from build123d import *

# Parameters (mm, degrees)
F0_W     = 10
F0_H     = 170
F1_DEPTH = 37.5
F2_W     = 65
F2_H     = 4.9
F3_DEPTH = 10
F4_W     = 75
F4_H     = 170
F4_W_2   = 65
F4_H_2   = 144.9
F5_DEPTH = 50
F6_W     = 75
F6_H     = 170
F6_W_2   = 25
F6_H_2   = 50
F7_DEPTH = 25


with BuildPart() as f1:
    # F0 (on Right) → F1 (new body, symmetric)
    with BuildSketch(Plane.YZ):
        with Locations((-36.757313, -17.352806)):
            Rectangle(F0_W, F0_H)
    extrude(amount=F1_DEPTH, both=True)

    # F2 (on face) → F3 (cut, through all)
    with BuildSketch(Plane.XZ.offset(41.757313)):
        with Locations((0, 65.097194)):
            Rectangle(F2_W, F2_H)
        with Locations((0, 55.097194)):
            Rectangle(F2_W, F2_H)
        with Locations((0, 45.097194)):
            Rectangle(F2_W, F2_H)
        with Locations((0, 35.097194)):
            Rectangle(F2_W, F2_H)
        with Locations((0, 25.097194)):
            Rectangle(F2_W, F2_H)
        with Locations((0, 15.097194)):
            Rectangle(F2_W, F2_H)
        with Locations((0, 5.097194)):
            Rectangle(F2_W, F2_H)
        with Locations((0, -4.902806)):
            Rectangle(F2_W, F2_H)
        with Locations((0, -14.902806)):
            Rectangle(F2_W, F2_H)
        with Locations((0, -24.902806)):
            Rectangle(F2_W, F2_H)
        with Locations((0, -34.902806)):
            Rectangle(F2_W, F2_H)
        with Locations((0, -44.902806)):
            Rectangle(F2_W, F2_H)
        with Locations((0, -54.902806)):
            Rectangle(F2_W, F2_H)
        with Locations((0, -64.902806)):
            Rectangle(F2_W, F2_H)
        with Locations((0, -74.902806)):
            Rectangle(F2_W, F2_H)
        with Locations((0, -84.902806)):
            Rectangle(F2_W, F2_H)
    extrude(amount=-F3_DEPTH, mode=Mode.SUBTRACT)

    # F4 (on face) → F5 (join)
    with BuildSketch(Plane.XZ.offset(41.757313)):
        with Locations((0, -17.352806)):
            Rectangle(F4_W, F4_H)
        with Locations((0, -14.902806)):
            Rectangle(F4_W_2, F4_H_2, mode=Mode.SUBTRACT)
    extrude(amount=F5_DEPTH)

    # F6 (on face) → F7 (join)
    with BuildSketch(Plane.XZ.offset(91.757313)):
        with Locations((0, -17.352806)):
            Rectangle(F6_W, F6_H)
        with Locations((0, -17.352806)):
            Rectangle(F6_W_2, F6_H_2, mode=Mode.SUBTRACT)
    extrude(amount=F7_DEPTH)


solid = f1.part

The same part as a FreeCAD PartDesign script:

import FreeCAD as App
import Part
import Sketcher

doc = App.newDocument("Part")
params = doc.addObject("Spreadsheet::Sheet", "Params")
for row, (alias, value) in enumerate([
    ("sketch1_width", "10 mm"),
    ("sketch1_height", "170 mm"),
    ("pad1_length", "75 mm"),
    ("sketch2_width", "65 mm"),
    ("sketch2_height", "4.9 mm"),
    ("sketch3_width", "75 mm"),
    ("sketch3_width2", "65 mm"),
    ("sketch3_height", "170 mm"),
    ("sketch3_height2", "144.9 mm"),
    ("pad2_length", "50 mm"),
    ("sketch4_width", "75 mm"),
    ("sketch4_width2", "25 mm"),
    ("sketch4_height", "170 mm"),
    ("sketch4_height2", "50 mm"),
    ("pad3_length", "25 mm"),
], start=1):
    params.set(f"A{row}", alias)
    params.set(f"B{row}", "=" + value)
    params.setAlias(f"B{row}", alias)

body = doc.addObject("PartDesign::Body", "Body")

# Sketch on YZ plane
sketch1 = doc.addObject("Sketcher::SketchObject", "Sketch")
body.addObject(sketch1)
sketch1.AttachmentSupport = (doc.YZ_Plane, [""])
sketch1.MapMode = "FlatFace"
sketch1.addGeometry([
    Part.LineSegment(App.Vector(-42, 68, 0), App.Vector(-42, -102, 0)),
    Part.LineSegment(App.Vector(-42, -102, 0), App.Vector(-32, -102, 0)),
    Part.LineSegment(App.Vector(-32, -102, 0), App.Vector(-32, 68, 0)),
    Part.LineSegment(App.Vector(-32, 68, 0), App.Vector(-42, 68, 0)),
], False)
sketch1.addConstraint([
    Sketcher.Constraint("Coincident", 0, 2, 1, 1),
    Sketcher.Constraint("Coincident", 1, 2, 2, 1),
    Sketcher.Constraint("Coincident", 2, 2, 3, 1),
    Sketcher.Constraint("Coincident", 3, 2, 0, 1),
    Sketcher.Constraint("Vertical", 0),
    Sketcher.Constraint("Horizontal", 1),
    Sketcher.Constraint("Vertical", 2),
    Sketcher.Constraint("Horizontal", 3),
    Sketcher.Constraint("DistanceX", 1, 1, 1, 2, 10.0),
    Sketcher.Constraint("DistanceY", 0, 2, 0, 1, 170.0),
    Sketcher.Constraint("DistanceX", 0, 2, -1, 1, 41.757313),
    Sketcher.Constraint("DistanceY", 0, 2, -1, 1, 102.352806),
])
sketch1.setExpression("Constraints[8]", "Params.sketch1_width")
sketch1.setExpression("Constraints[9]", "Params.sketch1_height")
pad1 = doc.addObject("PartDesign::Pad", "Pad")
body.addObject(pad1)
pad1.Profile = sketch1
pad1.setExpression("Length", "Params.pad1_length")
pad1.Midplane = True

# Sketch on XZ plane
sketch2 = doc.addObject("Sketcher::SketchObject", "Sketch001")
body.addObject(sketch2)
sketch2.AttachmentSupport = (doc.XZ_Plane, [""])
sketch2.MapMode = "FlatFace"
sketch2.AttachmentOffset = App.Placement(App.Vector(0, 0, 41.757313), App.Rotation())
sketch2.addGeometry([
    Part.LineSegment(App.Vector(-32.5, 67.5, 0), App.Vector(-32.5, 62.6, 0)),  # 0
    Part.LineSegment(App.Vector(-32.5, 62.6, 0), App.Vector(32.5, 62.6, 0)),  # 1
    Part.LineSegment(App.Vector(32.5, 62.6, 0), App.Vector(32.5, 67.5, 0)),  # 2
    Part.LineSegment(App.Vector(32.5, 67.5, 0), App.Vector(-32.5, 67.5, 0)),  # 3
    Part.LineSegment(App.Vector(-32.5, 57.5, 0), App.Vector(-32.5, 52.6, 0)),  # 4
    Part.LineSegment(App.Vector(-32.5, 52.6, 0), App.Vector(32.5, 52.6, 0)),  # 5
    Part.LineSegment(App.Vector(32.5, 52.6, 0), App.Vector(32.5, 57.5, 0)),  # 6
    Part.LineSegment(App.Vector(32.5, 57.5, 0), App.Vector(-32.5, 57.5, 0)),  # 7
    Part.LineSegment(App.Vector(-32.5, 47.5, 0), App.Vector(-32.5, 42.6, 0)),  # 8
    Part.LineSegment(App.Vector(-32.5, 42.6, 0), App.Vector(32.5, 42.6, 0)),  # 9
    Part.LineSegment(App.Vector(32.5, 42.6, 0), App.Vector(32.5, 47.5, 0)),  # 10
    Part.LineSegment(App.Vector(32.5, 47.5, 0), App.Vector(-32.5, 47.5, 0)),  # 11
    Part.LineSegment(App.Vector(-32.5, 37.5, 0), App.Vector(-32.5, 32.6, 0)),  # 12
    Part.LineSegment(App.Vector(-32.5, 32.6, 0), App.Vector(32.5, 32.6, 0)),  # 13
    Part.LineSegment(App.Vector(32.5, 32.6, 0), App.Vector(32.5, 37.5, 0)),  # 14
    Part.LineSegment(App.Vector(32.5, 37.5, 0), App.Vector(-32.5, 37.5, 0)),  # 15
    Part.LineSegment(App.Vector(-32.5, 27.5, 0), App.Vector(-32.5, 22.6, 0)),  # 16
    Part.LineSegment(App.Vector(-32.5, 22.6, 0), App.Vector(32.5, 22.6, 0)),  # 17
    Part.LineSegment(App.Vector(32.5, 22.6, 0), App.Vector(32.5, 27.5, 0)),  # 18
    Part.LineSegment(App.Vector(32.5, 27.5, 0), App.Vector(-32.5, 27.5, 0)),  # 19
    Part.LineSegment(App.Vector(-32.5, 17.5, 0), App.Vector(-32.5, 12.6, 0)),  # 20
    Part.LineSegment(App.Vector(-32.5, 12.6, 0), App.Vector(32.5, 12.6, 0)),  # 21
    Part.LineSegment(App.Vector(32.5, 12.6, 0), App.Vector(32.5, 17.5, 0)),  # 22
    Part.LineSegment(App.Vector(32.5, 17.5, 0), App.Vector(-32.5, 17.5, 0)),  # 23
    Part.LineSegment(App.Vector(-32.5, 7.5, 0), App.Vector(-32.5, 2.6, 0)),  # 24
    Part.LineSegment(App.Vector(-32.5, 2.6, 0), App.Vector(32.5, 2.6, 0)),  # 25
    Part.LineSegment(App.Vector(32.5, 2.6, 0), App.Vector(32.5, 7.5, 0)),  # 26
    Part.LineSegment(App.Vector(32.5, 7.5, 0), App.Vector(-32.5, 7.5, 0)),  # 27
    Part.LineSegment(App.Vector(-32.5, -2.5, 0), App.Vector(-32.5, -7.4, 0)),  # 28
    Part.LineSegment(App.Vector(-32.5, -7.4, 0), App.Vector(32.5, -7.4, 0)),  # 29
    Part.LineSegment(App.Vector(32.5, -7.4, 0), App.Vector(32.5, -2.5, 0)),  # 30
    Part.LineSegment(App.Vector(32.5, -2.5, 0), App.Vector(-32.5, -2.5, 0)),  # 31
    Part.LineSegment(App.Vector(-32.5, -12.5, 0), App.Vector(-32.5, -17.4, 0)),  # 32
    Part.LineSegment(App.Vector(-32.5, -17.4, 0), App.Vector(32.5, -17.4, 0)),  # 33
    Part.LineSegment(App.Vector(32.5, -17.4, 0), App.Vector(32.5, -12.5, 0)),  # 34
    Part.LineSegment(App.Vector(32.5, -12.5, 0), App.Vector(-32.5, -12.5, 0)),  # 35
    Part.LineSegment(App.Vector(-32.5, -22.5, 0), App.Vector(-32.5, -27.4, 0)),  # 36
    Part.LineSegment(App.Vector(-32.5, -27.4, 0), App.Vector(32.5, -27.4, 0)),  # 37
    Part.LineSegment(App.Vector(32.5, -27.4, 0), App.Vector(32.5, -22.5, 0)),  # 38
    Part.LineSegment(App.Vector(32.5, -22.5, 0), App.Vector(-32.5, -22.5, 0)),  # 39
    Part.LineSegment(App.Vector(-32.5, -32.5, 0), App.Vector(-32.5, -37.4, 0)),  # 40
    Part.LineSegment(App.Vector(-32.5, -37.4, 0), App.Vector(32.5, -37.4, 0)),  # 41
    Part.LineSegment(App.Vector(32.5, -37.4, 0), App.Vector(32.5, -32.5, 0)),  # 42
    Part.LineSegment(App.Vector(32.5, -32.5, 0), App.Vector(-32.5, -32.5, 0)),  # 43
    Part.LineSegment(App.Vector(-32.5, -42.5, 0), App.Vector(-32.5, -47.4, 0)),  # 44
    Part.LineSegment(App.Vector(-32.5, -47.4, 0), App.Vector(32.5, -47.4, 0)),  # 45
    Part.LineSegment(App.Vector(32.5, -47.4, 0), App.Vector(32.5, -42.5, 0)),  # 46
    Part.LineSegment(App.Vector(32.5, -42.5, 0), App.Vector(-32.5, -42.5, 0)),  # 47
    Part.LineSegment(App.Vector(-32.5, -52.5, 0), App.Vector(-32.5, -57.4, 0)),  # 48
    Part.LineSegment(App.Vector(-32.5, -57.4, 0), App.Vector(32.5, -57.4, 0)),  # 49
    Part.LineSegment(App.Vector(32.5, -57.4, 0), App.Vector(32.5, -52.5, 0)),  # 50
    Part.LineSegment(App.Vector(32.5, -52.5, 0), App.Vector(-32.5, -52.5, 0)),  # 51
    Part.LineSegment(App.Vector(-32.5, -62.5, 0), App.Vector(-32.5, -67.4, 0)),  # 52
    Part.LineSegment(App.Vector(-32.5, -67.4, 0), App.Vector(32.5, -67.4, 0)),  # 53
    Part.LineSegment(App.Vector(32.5, -67.4, 0), App.Vector(32.5, -62.5, 0)),  # 54
    Part.LineSegment(App.Vector(32.5, -62.5, 0), App.Vector(-32.5, -62.5, 0)),  # 55
    Part.LineSegment(App.Vector(-32.5, -72.5, 0), App.Vector(-32.5, -77.4, 0)),  # 56
    Part.LineSegment(App.Vector(-32.5, -77.4, 0), App.Vector(32.5, -77.4, 0)),  # 57
    Part.LineSegment(App.Vector(32.5, -77.4, 0), App.Vector(32.5, -72.5, 0)),  # 58
    Part.LineSegment(App.Vector(32.5, -72.5, 0), App.Vector(-32.5, -72.5, 0)),  # 59
    Part.LineSegment(App.Vector(-32.5, -82.5, 0), App.Vector(-32.5, -87.4, 0)),  # 60
    Part.LineSegment(App.Vector(-32.5, -87.4, 0), App.Vector(32.5, -87.4, 0)),  # 61
    Part.LineSegment(App.Vector(32.5, -87.4, 0), App.Vector(32.5, -82.5, 0)),  # 62
    Part.LineSegment(App.Vector(32.5, -82.5, 0), App.Vector(-32.5, -82.5, 0)),  # 63
], False)
sketch2.addConstraint([
    Sketcher.Constraint("Coincident", 0, 2, 1, 1),
    Sketcher.Constraint("Coincident", 1, 2, 2, 1),
    Sketcher.Constraint("Coincident", 2, 2, 3, 1),
    Sketcher.Constraint("Coincident", 3, 2, 0, 1),
    Sketcher.Constraint("Coincident", 4, 2, 5, 1),
    Sketcher.Constraint("Coincident", 5, 2, 6, 1),
    Sketcher.Constraint("Coincident", 6, 2, 7, 1),
    Sketcher.Constraint("Coincident", 7, 2, 4, 1),
    Sketcher.Constraint("Coincident", 8, 2, 9, 1),
    Sketcher.Constraint("Coincident", 9, 2, 10, 1),
    Sketcher.Constraint("Coincident", 10, 2, 11, 1),
    Sketcher.Constraint("Coincident", 11, 2, 8, 1),
    Sketcher.Constraint("Coincident", 12, 2, 13, 1),
    Sketcher.Constraint("Coincident", 13, 2, 14, 1),
    Sketcher.Constraint("Coincident", 14, 2, 15, 1),
    Sketcher.Constraint("Coincident", 15, 2, 12, 1),
    Sketcher.Constraint("Coincident", 16, 2, 17, 1),
    Sketcher.Constraint("Coincident", 17, 2, 18, 1),
    Sketcher.Constraint("Coincident", 18, 2, 19, 1),
    Sketcher.Constraint("Coincident", 19, 2, 16, 1),
    Sketcher.Constraint("Coincident", 20, 2, 21, 1),
    Sketcher.Constraint("Coincident", 21, 2, 22, 1),
    Sketcher.Constraint("Coincident", 22, 2, 23, 1),
    Sketcher.Constraint("Coincident", 23, 2, 20, 1),
    Sketcher.Constraint("Coincident", 24, 2, 25, 1),
    Sketcher.Constraint("Coincident", 25, 2, 26, 1),
    Sketcher.Constraint("Coincident", 26, 2, 27, 1),
    Sketcher.Constraint("Coincident", 27, 2, 24, 1),
    Sketcher.Constraint("Coincident", 28, 2, 29, 1),
    Sketcher.Constraint("Coincident", 29, 2, 30, 1),
    Sketcher.Constraint("Coincident", 30, 2, 31, 1),
    Sketcher.Constraint("Coincident", 31, 2, 28, 1),
    Sketcher.Constraint("Coincident", 32, 2, 33, 1),
    Sketcher.Constraint("Coincident", 33, 2, 34, 1),
    Sketcher.Constraint("Coincident", 34, 2, 35, 1),
    Sketcher.Constraint("Coincident", 35, 2, 32, 1),
    Sketcher.Constraint("Coincident", 36, 2, 37, 1),
    Sketcher.Constraint("Coincident", 37, 2, 38, 1),
    Sketcher.Constraint("Coincident", 38, 2, 39, 1),
    Sketcher.Constraint("Coincident", 39, 2, 36, 1),
    Sketcher.Constraint("Coincident", 40, 2, 41, 1),
    Sketcher.Constraint("Coincident", 41, 2, 42, 1),
    Sketcher.Constraint("Coincident", 42, 2, 43, 1),
    Sketcher.Constraint("Coincident", 43, 2, 40, 1),
    Sketcher.Constraint("Coincident", 44, 2, 45, 1),
    Sketcher.Constraint("Coincident", 45, 2, 46, 1),
    Sketcher.Constraint("Coincident", 46, 2, 47, 1),
    Sketcher.Constraint("Coincident", 47, 2, 44, 1),
    Sketcher.Constraint("Coincident", 48, 2, 49, 1),
    Sketcher.Constraint("Coincident", 49, 2, 50, 1),
    Sketcher.Constraint("Coincident", 50, 2, 51, 1),
    Sketcher.Constraint("Coincident", 51, 2, 48, 1),
    Sketcher.Constraint("Coincident", 52, 2, 53, 1),
    Sketcher.Constraint("Coincident", 53, 2, 54, 1),
    Sketcher.Constraint("Coincident", 54, 2, 55, 1),
    Sketcher.Constraint("Coincident", 55, 2, 52, 1),
    Sketcher.Constraint("Coincident", 56, 2, 57, 1),
    Sketcher.Constraint("Coincident", 57, 2, 58, 1),
    Sketcher.Constraint("Coincident", 58, 2, 59, 1),
    Sketcher.Constraint("Coincident", 59, 2, 56, 1),
    Sketcher.Constraint("Coincident", 60, 2, 61, 1),
    Sketcher.Constraint("Coincident", 61, 2, 62, 1),
    Sketcher.Constraint("Coincident", 62, 2, 63, 1),
    Sketcher.Constraint("Coincident", 63, 2, 60, 1),
    Sketcher.Constraint("Vertical", 0),
    Sketcher.Constraint("Horizontal", 1),
    Sketcher.Constraint("Vertical", 2),
    Sketcher.Constraint("Horizontal", 3),
    Sketcher.Constraint("Vertical", 4),
    Sketcher.Constraint("Horizontal", 5),
    Sketcher.Constraint("Vertical", 6),
    Sketcher.Constraint("Horizontal", 7),
    Sketcher.Constraint("Vertical", 8),
    Sketcher.Constraint("Horizontal", 9),
    Sketcher.Constraint("Vertical", 10),
    Sketcher.Constraint("Horizontal", 11),
    Sketcher.Constraint("Vertical", 12),
    Sketcher.Constraint("Horizontal", 13),
    Sketcher.Constraint("Vertical", 14),
    Sketcher.Constraint("Horizontal", 15),
    Sketcher.Constraint("Vertical", 16),
    Sketcher.Constraint("Horizontal", 17),
    Sketcher.Constraint("Vertical", 18),
    Sketcher.Constraint("Horizontal", 19),
    Sketcher.Constraint("Vertical", 20),
    Sketcher.Constraint("Horizontal", 21),
    Sketcher.Constraint("Vertical", 22),
    Sketcher.Constraint("Horizontal", 23),
    Sketcher.Constraint("Vertical", 24),
    Sketcher.Constraint("Horizontal", 25),
    Sketcher.Constraint("Vertical", 26),
    Sketcher.Constraint("Horizontal", 27),
    Sketcher.Constraint("Vertical", 28),
    Sketcher.Constraint("Horizontal", 29),
    Sketcher.Constraint("Vertical", 30),
    Sketcher.Constraint("Horizontal", 31),
    Sketcher.Constraint("Vertical", 32),
    Sketcher.Constraint("Horizontal", 33),
    Sketcher.Constraint("Vertical", 34),
    Sketcher.Constraint("Horizontal", 35),
    Sketcher.Constraint("Vertical", 36),
    Sketcher.Constraint("Horizontal", 37),
    Sketcher.Constraint("Vertical", 38),
    Sketcher.Constraint("Horizontal", 39),
    Sketcher.Constraint("Vertical", 40),
    Sketcher.Constraint("Horizontal", 41),
    Sketcher.Constraint("Vertical", 42),
    Sketcher.Constraint("Horizontal", 43),
    Sketcher.Constraint("Vertical", 44),
    Sketcher.Constraint("Horizontal", 45),
    Sketcher.Constraint("Vertical", 46),
    Sketcher.Constraint("Horizontal", 47),
    Sketcher.Constraint("Vertical", 48),
    Sketcher.Constraint("Horizontal", 49),
    Sketcher.Constraint("Vertical", 50),
    Sketcher.Constraint("Horizontal", 51),
    Sketcher.Constraint("Vertical", 52),
    Sketcher.Constraint("Horizontal", 53),
    Sketcher.Constraint("Vertical", 54),
    Sketcher.Constraint("Horizontal", 55),
    Sketcher.Constraint("Vertical", 56),
    Sketcher.Constraint("Horizontal", 57),
    Sketcher.Constraint("Vertical", 58),
    Sketcher.Constraint("Horizontal", 59),
    Sketcher.Constraint("Vertical", 60),
    Sketcher.Constraint("Horizontal", 61),
    Sketcher.Constraint("Vertical", 62),
    Sketcher.Constraint("Horizontal", 63),
    Sketcher.Constraint("Vertical", 3, 2, 4, 2),
    Sketcher.Constraint("Vertical", 2, 2, 5, 2),
    Sketcher.Constraint("Vertical", 7, 2, 8, 2),
    Sketcher.Constraint("Vertical", 6, 2, 9, 2),
    Sketcher.Constraint("Vertical", 11, 2, 12, 2),
    Sketcher.Constraint("Vertical", 10, 2, 13, 2),
    Sketcher.Constraint("Vertical", 15, 2, 16, 2),
    Sketcher.Constraint("Vertical", 14, 2, 17, 2),
    Sketcher.Constraint("Vertical", 19, 2, 20, 2),
    Sketcher.Constraint("Vertical", 18, 2, 21, 2),
    Sketcher.Constraint("Vertical", 23, 2, 24, 2),
    Sketcher.Constraint("Vertical", 22, 2, 25, 2),
    Sketcher.Constraint("Vertical", 27, 2, 28, 2),
    Sketcher.Constraint("Vertical", 26, 2, 29, 2),
    Sketcher.Constraint("Vertical", 31, 2, 32, 2),
    Sketcher.Constraint("Vertical", 30, 2, 33, 2),
    Sketcher.Constraint("Vertical", 35, 2, 36, 2),
    Sketcher.Constraint("Vertical", 34, 2, 37, 2),
    Sketcher.Constraint("Vertical", 39, 2, 40, 2),
    Sketcher.Constraint("Vertical", 38, 2, 41, 2),
    Sketcher.Constraint("Vertical", 43, 2, 44, 2),
    Sketcher.Constraint("Vertical", 42, 2, 45, 2),
    Sketcher.Constraint("Vertical", 47, 2, 48, 2),
    Sketcher.Constraint("Vertical", 46, 2, 49, 2),
    Sketcher.Constraint("Vertical", 51, 2, 52, 2),
    Sketcher.Constraint("Vertical", 50, 2, 53, 2),
    Sketcher.Constraint("Vertical", 55, 2, 56, 2),
    Sketcher.Constraint("Vertical", 54, 2, 57, 2),
    Sketcher.Constraint("Vertical", 59, 2, 60, 2),
    Sketcher.Constraint("Vertical", 58, 2, 61, 2),
    Sketcher.Constraint("Equal", 2, 4),
    Sketcher.Constraint("Equal", 6, 8),
    Sketcher.Constraint("Equal", 10, 12),
    Sketcher.Constraint("Equal", 14, 16),
    Sketcher.Constraint("Equal", 18, 20),
    Sketcher.Constraint("Equal", 22, 24),
    Sketcher.Constraint("Equal", 26, 28),
    Sketcher.Constraint("Equal", 30, 32),
    Sketcher.Constraint("Equal", 34, 36),
    Sketcher.Constraint("Equal", 38, 40),
    Sketcher.Constraint("Equal", 42, 44),
    Sketcher.Constraint("Equal", 46, 48),
    Sketcher.Constraint("Equal", 50, 52),
    Sketcher.Constraint("Equal", 54, 56),
    Sketcher.Constraint("Equal", 58, 60),
    Sketcher.Constraint("DistanceX", 1, 1, 1, 2, 65.0),
    Sketcher.Constraint("DistanceY", 0, 2, 0, 1, 4.9),
    Sketcher.Constraint("DistanceX", 0, 2, -1, 1, 32.5),
    Sketcher.Constraint("DistanceY", -1, 1, 0, 2, 62.647194),
    Sketcher.Constraint("DistanceY", -1, 1, 4, 2, 52.647194),
    Sketcher.Constraint("DistanceY", -1, 1, 8, 2, 42.647194),
    Sketcher.Constraint("DistanceY", -1, 1, 12, 2, 32.647194),
    Sketcher.Constraint("DistanceY", -1, 1, 16, 2, 22.647194),
    Sketcher.Constraint("DistanceY", -1, 1, 20, 2, 12.647194),
    Sketcher.Constraint("DistanceY", -1, 1, 24, 2, 2.647194),
    Sketcher.Constraint("DistanceY", 28, 2, -1, 1, 7.352806),
    Sketcher.Constraint("DistanceY", 32, 2, -1, 1, 17.352806),
    Sketcher.Constraint("DistanceY", 36, 2, -1, 1, 27.352806),
    Sketcher.Constraint("DistanceY", 40, 2, -1, 1, 37.352806),
    Sketcher.Constraint("DistanceY", 44, 2, -1, 1, 47.352806),
    Sketcher.Constraint("DistanceY", 48, 2, -1, 1, 57.352806),
    Sketcher.Constraint("DistanceY", 52, 2, -1, 1, 67.352806),
    Sketcher.Constraint("DistanceY", 56, 2, -1, 1, 77.352806),
    Sketcher.Constraint("DistanceY", 60, 2, -1, 1, 87.352806),
])
sketch2.setExpression("Constraints[173]", "Params.sketch2_width")
sketch2.setExpression("Constraints[174]", "Params.sketch2_height")
pocket1 = doc.addObject("PartDesign::Pocket", "Pocket")
body.addObject(pocket1)
pocket1.Profile = sketch2
pocket1.Type = "ThroughAll"

# Sketch on XZ plane
sketch3 = doc.addObject("Sketcher::SketchObject", "Sketch002")
body.addObject(sketch3)
sketch3.AttachmentSupport = (doc.XZ_Plane, [""])
sketch3.MapMode = "FlatFace"
sketch3.AttachmentOffset = App.Placement(App.Vector(0, 0, 41.757313), App.Rotation())
sketch3.addGeometry([
    Part.LineSegment(App.Vector(-38, 68, 0), App.Vector(-38, -102, 0)),  # 0
    Part.LineSegment(App.Vector(-38, -102, 0), App.Vector(38, -102, 0)),  # 1
    Part.LineSegment(App.Vector(38, -102, 0), App.Vector(38, 68, 0)),  # 2
    Part.LineSegment(App.Vector(38, 68, 0), App.Vector(-38, 68, 0)),  # 3
    Part.LineSegment(App.Vector(32, -87, 0), App.Vector(-32, -87, 0)),  # 4
    Part.LineSegment(App.Vector(-32, -87, 0), App.Vector(-32, 58, 0)),  # 5
    Part.LineSegment(App.Vector(-32, 58, 0), App.Vector(32, 58, 0)),  # 6
    Part.LineSegment(App.Vector(32, 58, 0), App.Vector(32, -87, 0)),  # 7
], False)
sketch3.addConstraint([
    Sketcher.Constraint("Coincident", 0, 2, 1, 1),
    Sketcher.Constraint("Coincident", 1, 2, 2, 1),
    Sketcher.Constraint("Coincident", 2, 2, 3, 1),
    Sketcher.Constraint("Coincident", 3, 2, 0, 1),
    Sketcher.Constraint("Coincident", 4, 2, 5, 1),
    Sketcher.Constraint("Coincident", 5, 2, 6, 1),
    Sketcher.Constraint("Coincident", 6, 2, 7, 1),
    Sketcher.Constraint("Coincident", 7, 2, 4, 1),
    Sketcher.Constraint("Vertical", 0),
    Sketcher.Constraint("Horizontal", 1),
    Sketcher.Constraint("Vertical", 2),
    Sketcher.Constraint("Horizontal", 3),
    Sketcher.Constraint("Horizontal", 4),
    Sketcher.Constraint("Vertical", 5),
    Sketcher.Constraint("Horizontal", 6),
    Sketcher.Constraint("Vertical", 7),
    Sketcher.Constraint("DistanceX", 1, 1, 1, 2, 75.0),
    Sketcher.Constraint("DistanceX", 4, 2, 4, 1, 65.0),
    Sketcher.Constraint("DistanceY", 0, 2, 0, 1, 170.0),
    Sketcher.Constraint("DistanceY", 5, 1, 5, 2, 144.9),
    Sketcher.Constraint("DistanceX", 0, 2, 4, 2, 5.0),
    Sketcher.Constraint("DistanceY", 0, 2, 4, 2, 15.0),
    Sketcher.Constraint("DistanceX", 0, 2, -1, 1, 37.5),
    Sketcher.Constraint("DistanceY", 0, 2, -1, 1, 102.352806),
])
sketch3.setExpression("Constraints[16]", "Params.sketch3_width")
sketch3.setExpression("Constraints[17]", "Params.sketch3_width2")
sketch3.setExpression("Constraints[18]", "Params.sketch3_height")
sketch3.setExpression("Constraints[19]", "Params.sketch3_height2")
pad2 = doc.addObject("PartDesign::Pad", "Pad001")
body.addObject(pad2)
pad2.Profile = sketch3
pad2.setExpression("Length", "Params.pad2_length")

# Sketch on XZ plane
sketch4 = doc.addObject("Sketcher::SketchObject", "Sketch003")
body.addObject(sketch4)
sketch4.AttachmentSupport = (doc.XZ_Plane, [""])
sketch4.MapMode = "FlatFace"
sketch4.AttachmentOffset = App.Placement(App.Vector(0, 0, 91.757313), App.Rotation())
sketch4.addGeometry([
    Part.LineSegment(App.Vector(-38, 68, 0), App.Vector(-38, -102, 0)),  # 0
    Part.LineSegment(App.Vector(-38, -102, 0), App.Vector(38, -102, 0)),  # 1
    Part.LineSegment(App.Vector(38, -102, 0), App.Vector(38, 68, 0)),  # 2
    Part.LineSegment(App.Vector(38, 68, 0), App.Vector(-38, 68, 0)),  # 3
    Part.LineSegment(App.Vector(12, -42, 0), App.Vector(-12, -42, 0)),  # 4
    Part.LineSegment(App.Vector(-12, -42, 0), App.Vector(-12, 8, 0)),  # 5
    Part.LineSegment(App.Vector(-12, 8, 0), App.Vector(12, 8, 0)),  # 6
    Part.LineSegment(App.Vector(12, 8, 0), App.Vector(12, -42, 0)),  # 7
], False)
sketch4.addConstraint([
    Sketcher.Constraint("Coincident", 0, 2, 1, 1),
    Sketcher.Constraint("Coincident", 1, 2, 2, 1),
    Sketcher.Constraint("Coincident", 2, 2, 3, 1),
    Sketcher.Constraint("Coincident", 3, 2, 0, 1),
    Sketcher.Constraint("Coincident", 4, 2, 5, 1),
    Sketcher.Constraint("Coincident", 5, 2, 6, 1),
    Sketcher.Constraint("Coincident", 6, 2, 7, 1),
    Sketcher.Constraint("Coincident", 7, 2, 4, 1),
    Sketcher.Constraint("Vertical", 0),
    Sketcher.Constraint("Horizontal", 1),
    Sketcher.Constraint("Vertical", 2),
    Sketcher.Constraint("Horizontal", 3),
    Sketcher.Constraint("Horizontal", 4),
    Sketcher.Constraint("Vertical", 5),
    Sketcher.Constraint("Horizontal", 6),
    Sketcher.Constraint("Vertical", 7),
    Sketcher.Constraint("DistanceX", 1, 1, 1, 2, 75.0),
    Sketcher.Constraint("DistanceX", 4, 2, 4, 1, 25.0),
    Sketcher.Constraint("DistanceY", 0, 2, 0, 1, 170.0),
    Sketcher.Constraint("DistanceY", 5, 1, 5, 2, 50.0),
    Sketcher.Constraint("DistanceX", 0, 2, 4, 2, 25.0),
    Sketcher.Constraint("DistanceY", 0, 2, 4, 2, 60.0),
    Sketcher.Constraint("DistanceX", 0, 2, -1, 1, 37.5),
    Sketcher.Constraint("DistanceY", 0, 2, -1, 1, 102.352806),
])
sketch4.setExpression("Constraints[16]", "Params.sketch4_width")
sketch4.setExpression("Constraints[17]", "Params.sketch4_width2")
sketch4.setExpression("Constraints[18]", "Params.sketch4_height")
sketch4.setExpression("Constraints[19]", "Params.sketch4_height2")
pad3 = doc.addObject("PartDesign::Pad", "Pad002")
body.addObject(pad3)
pad3.Profile = sketch4
pad3.setExpression("Length", "Params.pad3_length")

doc.recompute()
